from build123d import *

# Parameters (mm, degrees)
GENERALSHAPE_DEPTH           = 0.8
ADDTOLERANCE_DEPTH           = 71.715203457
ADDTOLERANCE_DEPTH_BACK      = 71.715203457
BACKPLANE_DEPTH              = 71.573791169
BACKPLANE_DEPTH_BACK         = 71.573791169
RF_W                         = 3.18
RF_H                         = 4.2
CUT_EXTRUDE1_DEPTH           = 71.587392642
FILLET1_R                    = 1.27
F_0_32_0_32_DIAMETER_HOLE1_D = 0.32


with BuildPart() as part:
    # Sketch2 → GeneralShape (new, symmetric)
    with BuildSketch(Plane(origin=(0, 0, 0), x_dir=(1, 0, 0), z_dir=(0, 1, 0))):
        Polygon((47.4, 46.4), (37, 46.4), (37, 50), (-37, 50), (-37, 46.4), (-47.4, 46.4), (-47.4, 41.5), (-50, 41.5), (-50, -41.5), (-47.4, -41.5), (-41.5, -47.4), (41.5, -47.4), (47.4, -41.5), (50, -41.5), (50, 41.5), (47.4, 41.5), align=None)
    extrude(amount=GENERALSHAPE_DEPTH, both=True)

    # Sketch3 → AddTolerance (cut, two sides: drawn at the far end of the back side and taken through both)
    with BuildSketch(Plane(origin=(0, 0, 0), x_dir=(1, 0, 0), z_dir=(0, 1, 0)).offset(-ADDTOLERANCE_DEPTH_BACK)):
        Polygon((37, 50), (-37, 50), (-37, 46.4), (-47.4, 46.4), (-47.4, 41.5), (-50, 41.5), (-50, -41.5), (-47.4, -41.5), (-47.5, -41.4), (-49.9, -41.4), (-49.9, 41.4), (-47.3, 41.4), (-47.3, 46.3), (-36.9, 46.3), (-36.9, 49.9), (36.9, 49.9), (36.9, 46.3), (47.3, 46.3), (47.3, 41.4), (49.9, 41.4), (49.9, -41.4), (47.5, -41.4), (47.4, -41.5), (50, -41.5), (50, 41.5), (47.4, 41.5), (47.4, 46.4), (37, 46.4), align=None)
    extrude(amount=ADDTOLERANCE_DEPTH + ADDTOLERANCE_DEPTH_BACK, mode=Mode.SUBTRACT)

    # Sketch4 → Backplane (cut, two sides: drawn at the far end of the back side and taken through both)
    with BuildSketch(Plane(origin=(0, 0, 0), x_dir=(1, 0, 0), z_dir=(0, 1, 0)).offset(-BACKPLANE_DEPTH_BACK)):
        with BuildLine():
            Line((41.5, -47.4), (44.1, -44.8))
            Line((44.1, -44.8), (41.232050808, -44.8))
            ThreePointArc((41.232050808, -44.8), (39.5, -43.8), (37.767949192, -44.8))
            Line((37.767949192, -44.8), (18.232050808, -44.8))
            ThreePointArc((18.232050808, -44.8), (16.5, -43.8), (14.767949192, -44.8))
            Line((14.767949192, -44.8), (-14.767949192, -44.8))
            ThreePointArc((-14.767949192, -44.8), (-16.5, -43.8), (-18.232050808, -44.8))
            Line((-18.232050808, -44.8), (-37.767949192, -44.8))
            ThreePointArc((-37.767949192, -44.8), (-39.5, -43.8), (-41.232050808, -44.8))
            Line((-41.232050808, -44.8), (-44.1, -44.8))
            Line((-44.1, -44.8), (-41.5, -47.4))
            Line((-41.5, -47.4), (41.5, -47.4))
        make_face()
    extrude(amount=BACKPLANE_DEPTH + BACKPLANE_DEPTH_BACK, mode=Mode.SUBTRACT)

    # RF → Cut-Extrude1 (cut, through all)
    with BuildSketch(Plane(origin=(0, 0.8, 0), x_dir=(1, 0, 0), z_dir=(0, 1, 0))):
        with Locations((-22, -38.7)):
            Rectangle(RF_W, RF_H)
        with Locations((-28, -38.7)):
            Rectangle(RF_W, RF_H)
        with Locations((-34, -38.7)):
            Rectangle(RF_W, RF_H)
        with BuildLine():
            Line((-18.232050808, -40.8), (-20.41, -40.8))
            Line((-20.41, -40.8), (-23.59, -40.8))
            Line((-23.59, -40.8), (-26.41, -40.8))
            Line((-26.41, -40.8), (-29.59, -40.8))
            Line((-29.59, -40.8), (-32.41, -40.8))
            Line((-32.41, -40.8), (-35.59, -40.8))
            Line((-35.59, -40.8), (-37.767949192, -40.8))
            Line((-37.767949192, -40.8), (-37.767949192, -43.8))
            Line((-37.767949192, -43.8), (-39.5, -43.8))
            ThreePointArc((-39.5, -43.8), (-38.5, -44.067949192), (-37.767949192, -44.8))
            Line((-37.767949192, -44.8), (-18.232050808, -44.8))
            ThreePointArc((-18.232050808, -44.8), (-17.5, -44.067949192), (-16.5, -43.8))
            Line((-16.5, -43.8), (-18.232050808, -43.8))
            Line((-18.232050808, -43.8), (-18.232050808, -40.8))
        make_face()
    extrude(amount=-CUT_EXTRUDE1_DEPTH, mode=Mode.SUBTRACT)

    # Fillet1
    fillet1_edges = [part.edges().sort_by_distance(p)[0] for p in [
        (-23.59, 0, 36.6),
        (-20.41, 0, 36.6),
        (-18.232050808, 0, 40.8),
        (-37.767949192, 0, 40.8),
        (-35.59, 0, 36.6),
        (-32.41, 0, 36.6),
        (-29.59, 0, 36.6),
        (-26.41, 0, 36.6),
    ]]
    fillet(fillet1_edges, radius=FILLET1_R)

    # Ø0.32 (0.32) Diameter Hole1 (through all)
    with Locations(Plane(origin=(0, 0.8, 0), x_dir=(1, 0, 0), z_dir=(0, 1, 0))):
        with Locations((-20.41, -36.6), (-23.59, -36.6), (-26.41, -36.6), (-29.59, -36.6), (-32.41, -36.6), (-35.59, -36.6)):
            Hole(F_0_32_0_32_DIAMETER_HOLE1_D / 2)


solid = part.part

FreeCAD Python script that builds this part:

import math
import FreeCAD as App
import Part
import Sketcher
from FreeCAD import Vector
Q = App.Units.Quantity


def edges_at(feature, points):
    """Names of the edges that pass closest to the given points."""
    edges = feature.Shape.Edges
    near = lambda p: min(range(len(edges)), key=lambda i: edges[i].distToShape(Part.Vertex(*p))[0])
    return sorted({f"Edge{near(p) + 1}" for p in points})


def add_polygon(sketch, points):
    """Adds a closed chain of lines whose ends are joined by coincident constraints."""
    first, n = sketch.GeometryCount, len(points)
    for a, b in zip(points, points[1:] + points[:1]):
        sketch.addGeometry(Part.LineSegment(App.Vector(*a, 0), App.Vector(*b, 0)), False)
    for i in range(n):
        sketch.addConstraint(Sketcher.Constraint("Coincident", first + i, 2, first + (i + 1) % n, 1))

doc = App.newDocument("Part")
body = doc.addObject("PartDesign::Body", "Body")

# Sketch on XZ plane
sketch1 = body.newObject("Sketcher::SketchObject", "Sketch")
sketch1.AttachmentSupport = (doc.getObject("XZ_Plane"), [""])
sketch1.MapMode = "FlatFace"
add_polygon(sketch1, [(47.4, -46.4), (37, -46.4), (37, -50), (-37, -50), (-37, -46.4), (-47.4, -46.4), (-47.4, -41.5), (-50, -41.5), (-50, 41.5), (-47.4, 41.5), (-41.5, 47.4), (41.5, 47.4), (47.4, 41.5), (50, 41.5), (50, -41.5), (47.4, -41.5)])  # lines 0-15
sketch1.addConstraint([
    Sketcher.Constraint("Horizontal", 0),
    Sketcher.Constraint("Vertical", 1),
    Sketcher.Constraint("Horizontal", 2),
    Sketcher.Constraint("Vertical", 3),
    Sketcher.Constraint("Horizontal", 4),
    Sketcher.Constraint("Vertical", 5),
    Sketcher.Constraint("Horizontal", 6),
    Sketcher.Constraint("Vertical", 7),
    Sketcher.Constraint("Horizontal", 8),
    Sketcher.Constraint("Horizontal", 10),
    Sketcher.Constraint("Horizontal", 12),
    Sketcher.Constraint("Vertical", 13),
    Sketcher.Constraint("Horizontal", 14),
    Sketcher.Constraint("Vertical", 15),
    Sketcher.Constraint("Symmetric", 5, 2, 11, 2, -1, 1),
    Sketcher.Constraint("Symmetric", 7, 2, 13, 2, -1, 1),
    Sketcher.Constraint("Symmetric", 0, 2, 3, 2, -2),
    Sketcher.Constraint("Symmetric", 8, 2, 11, 2, -2),
    Sketcher.Constraint("Perpendicular", 9, 11),
    Sketcher.Constraint("Vertical", 11, 2, 14, 2),
    Sketcher.Constraint("Equal", 10, 7),
    Sketcher.Constraint("Equal", 9, 11),
    Sketcher.Constraint("DistanceX", 2, 2, 2, 1, Q("74 mm")),
    Sketcher.Constraint("DistanceX", 10, 1, 10, 2, Q("83 mm")),
    Sketcher.Constraint("DistanceX", 0, 2, 0, 1, Q("10.4 mm")),
    Sketcher.Constraint("DistanceX", 6, 2, 6, 1, Q("2.6 mm")),
    Sketcher.Constraint("DistanceY", 1, 2, 1, 1, Q("3.6 mm")),
    Sketcher.Constraint("DistanceY", 5, 1, 5, 2, Q("4.9 mm")),
])
pad1 = body.newObject("PartDesign::Pad", "Pad")
pad1.Profile = sketch1
pad1.Length = 1.6
pad1.Midplane = True

# Sketch on XZ plane
sketch2 = body.newObject("Sketcher::SketchObject", "Sketch001")
sketch2.AttachmentSupport = (doc.getObject("XZ_Plane"), [""])
sketch2.MapMode = "FlatFace"
add_polygon(sketch2, [(37, -50), (-37, -50), (-37, -46.4), (-47.4, -46.4), (-47.4, -41.5), (-50, -41.5), (-50, 41.5), (-47.4, 41.5), (-47.5, 41.4), (-49.9, 41.4), (-49.9, -41.4), (-47.3, -41.4), (-47.3, -46.3), (-36.9, -46.3), (-36.9, -49.9), (36.9, -49.9), (36.9, -46.3), (47.3, -46.3), (47.3, -41.4), (49.9, -41.4), (49.9, 41.4), (47.5, 41.4), (47.4, 41.5), (50, 41.5), (50, -41.5), (47.4, -41.5), (47.4, -46.4), (37, -46.4)])  # lines 0-27
sketch2.addConstraint([
    Sketcher.Constraint("Horizontal", 0),
    Sketcher.Constraint("Vertical", 1),
    Sketcher.Constraint("Horizontal", 2),
    Sketcher.Constraint("Vertical", 3),
    Sketcher.Constraint("Horizontal", 4),
    Sketcher.Constraint("Vertical", 5),
    Sketcher.Constraint("Horizontal", 6),
    Sketcher.Constraint("Horizontal", 8),
    Sketcher.Constraint("Vertical", 9),
    Sketcher.Constraint("Horizontal", 10),
    Sketcher.Constraint("Vertical", 11),
    Sketcher.Constraint("Horizontal", 12),
    Sketcher.Constraint("Vertical", 13),
    Sketcher.Constraint("Horizontal", 14),
    Sketcher.Constraint("Vertical", 15),
    Sketcher.Constraint("Horizontal", 16),
    Sketcher.Constraint("Vertical", 17),
    Sketcher.Constraint("Horizontal", 18),
    Sketcher.Constraint("Vertical", 19),
    Sketcher.Constraint("Horizontal", 20),
    Sketcher.Constraint("Horizontal", 22),
    Sketcher.Constraint("Vertical", 23),
    Sketcher.Constraint("Horizontal", 24),
    Sketcher.Constraint("Vertical", 25),
    Sketcher.Constraint("Horizontal", 26),
    Sketcher.Constraint("Vertical", 27),
    Sketcher.Constraint("Symmetric", 8, 2, 18, 2, -1, 1),
    Sketcher.Constraint("Symmetric", 3, 2, 21, 2, -1, 1),
    Sketcher.Constraint("Symmetric", 5, 2, 23, 2, -1, 1),
    Sketcher.Constraint("Symmetric", 12, 2, 15, 2, -2),
    Sketcher.Constraint("Symmetric", 10, 2, 17, 2, -2),
    Sketcher.Constraint("Symmetric", 7, 2, 20, 2, -2),
    Sketcher.Constraint("Symmetric", 6, 2, 21, 2, -2),
    Sketcher.Constraint("Symmetric", 2, 2, 25, 2, -2),
    Sketcher.Constraint("Perpendicular", 7, 21),
    Sketcher.Constraint("Equal", 6, 10),
    Sketcher.Constraint("Equal", 2, 12),
    Sketcher.Constraint("Equal", 16, 26),
    Sketcher.Constraint("Equal", 3, 11),
    Sketcher.Constraint("Equal", 1, 13),
    Sketcher.Constraint("DistanceX", 0, 2, 0, 1, Q("74 mm")),
    Sketcher.Constraint("DistanceY", 5, 1, 5, 2, Q("83 mm")),
    Sketcher.Constraint("DistanceX", 2, 2, 2, 1, Q("10.4 mm")),
    Sketcher.Constraint("DistanceX", 4, 2, 4, 1, Q("2.6 mm")),
    Sketcher.Constraint("DistanceX", 8, 2, 8, 1, Q("2.4 mm")),
    Sketcher.Constraint("DistanceX", 14, 1, 14, 2, Q("73.8 mm")),
    Sketcher.Constraint("DistanceY", 1, 1, 1, 2, Q("3.6 mm")),
    Sketcher.Constraint("DistanceY", 3, 1, 3, 2, Q("4.9 mm")),
])
pocket1 = body.newObject("PartDesign::Pocket", "Pocket")
pocket1.Profile = sketch2
pocket1.Type = "ThroughAll"
pocket1.Midplane = True

# Sketch on XZ plane
sketch3 = body.newObject("Sketcher::SketchObject", "Sketch002")
sketch3.AttachmentSupport = (doc.getObject("XZ_Plane"), [""])
sketch3.MapMode = "FlatFace"
sketch3.addGeometry([
    Part.LineSegment(Vector(41.5, 47.4, 0), Vector(44.1, 44.8, 0)),  # 0
    Part.LineSegment(Vector(44.1, 44.8, 0), Vector(41.2, 44.8, 0)),  # 1
    Part.ArcOfCircle(Part.Circle(Vector(39.5, 45.8, 0), Vector(0, 0, 1), 2), math.radians(-150), math.radians(-30)),  # 2
    Part.LineSegment(Vector(37.8, 44.8, 0), Vector(18.2, 44.8, 0)),  # 3
    Part.ArcOfCircle(Part.Circle(Vector(16.5, 45.8, 0), Vector(0, 0, 1), 2), math.radians(-150), math.radians(-30)),  # 4
    Part.LineSegment(Vector(14.8, 44.8, 0), Vector(-14.8, 44.8, 0)),  # 5
    Part.ArcOfCircle(Part.Circle(Vector(-16.5, 45.8, 0), Vector(0, 0, 1), 2), math.radians(-150), math.radians(-30)),  # 6
    Part.LineSegment(Vector(-18.2, 44.8, 0), Vector(-37.8, 44.8, 0)),  # 7
    Part.ArcOfCircle(Part.Circle(Vector(-39.5, 45.8, 0), Vector(0, 0, 1), 2), math.radians(-150), math.radians(-30)),  # 8
    Part.LineSegment(Vector(-41.2, 44.8, 0), Vector(-44.1, 44.8, 0)),  # 9
    Part.LineSegment(Vector(-44.1, 44.8, 0), Vector(-41.5, 47.4, 0)),  # 10
    Part.LineSegment(Vector(-41.5, 47.4, 0), Vector(41.5, 47.4, 0)),  # 11
], False)
sketch3.addConstraint([
    Sketcher.Constraint("Coincident", 0, 2, 1, 1),
    Sketcher.Constraint("Coincident", 1, 2, 2, 2),
    Sketcher.Constraint("Coincident", 2, 1, 3, 1),
    Sketcher.Constraint("Coincident", 3, 2, 4, 2),
    Sketcher.Constraint("Coincident", 4, 1, 5, 1),
    Sketcher.Constraint("Coincident", 5, 2, 6, 2),
    Sketcher.Constraint("Coincident", 6, 1, 7, 1),
    Sketcher.Constraint("Coincident", 7, 2, 8, 2),
    Sketcher.Constraint("Coincident", 8, 1, 9, 1),
    Sketcher.Constraint("Coincident", 9, 2, 10, 1),
    Sketcher.Constraint("Coincident", 10, 2, 11, 1),
    Sketcher.Constraint("Coincident", 11, 2, 0, 1),
    Sketcher.Constraint("Horizontal", 1),
    Sketcher.Constraint("Horizontal", 3),
    Sketcher.Constraint("Horizontal", 5),
    Sketcher.Constraint("Horizontal", 7),
    Sketcher.Constraint("Horizontal", 9),
    Sketcher.Constraint("Horizontal", 11),
    Sketcher.Constraint("Equal", 2, 4),
    Sketcher.Constraint("Equal", 4, 6),
    Sketcher.Constraint("Equal", 6, 8),
    Sketcher.Constraint("Symmetric", 4, 3, 6, 3, -2),
    Sketcher.Constraint("Symmetric", 2, 3, 8, 3, -2),
    Sketcher.Constraint("Symmetric", 0, 2, 9, 2, -2),
    Sketcher.Constraint("Perpendicular", 0, 10),
    Sketcher.Constraint("Horizontal", 2, 3, 4, 3),
    Sketcher.Constraint("Horizontal", 1, 2, 2, 1),
    Sketcher.Constraint("Horizontal", 3, 2, 4, 1),
    Sketcher.Constraint("Horizontal", 5, 2, 6, 1),
    Sketcher.Constraint("Equal", 0, 10),
    Sketcher.Constraint("Radius", 2, Q("2 mm")),
    Sketcher.Constraint("DistanceX", 11, 1, 11, 2, Q("83 mm")),
    Sketcher.Constraint("DistanceX", 4, 3, 2, 3, Q("23 mm")),
    Sketcher.Constraint("DistanceX", 6, 3, 4, 3, Q("33 mm")),
    Sketcher.Constraint("DistanceY", 0, 2, 2, 3, Q("1 mm")),
    Sketcher.Constraint("DistanceY", -1, 1, 2, 3, Q("45.8 mm")),
    Sketcher.Constraint("DistanceX", -1, 1, 0, 2, Q("44.1 mm")),
])
pocket2 = body.newObject("PartDesign::Pocket", "Pocket001")
pocket2.Profile = sketch3
pocket2.Type = "ThroughAll"
pocket2.Midplane = True

# Sketch on XZ plane
sketch4 = body.newObject("Sketcher::SketchObject", "Sketch003")
sketch4.AttachmentSupport = (doc.getObject("XZ_Plane"), [""])
sketch4.MapMode = "FlatFace"
sketch4.AttachmentOffset = App.Placement(Vector(0, 0, -0.8), App.Rotation())
sketch4.addGeometry([
    Part.LineSegment(Vector(-23.6, 36.6, 0), Vector(-23.6, 40.8, 0)),  # 0
    Part.LineSegment(Vector(-23.6, 40.8, 0), Vector(-26.4, 40.8, 0)),  # 1
    Part.LineSegment(Vector(-26.4, 40.8, 0), Vector(-26.4, 36.6, 0)),  # 2
    Part.LineSegment(Vector(-26.4, 36.6, 0), Vector(-29.6, 36.6, 0)),  # 3
    Part.LineSegment(Vector(-29.6, 36.6, 0), Vector(-29.6, 40.8, 0)),  # 4
    Part.LineSegment(Vector(-29.6, 40.8, 0), Vector(-32.4, 40.8, 0)),  # 5
    Part.LineSegment(Vector(-32.4, 40.8, 0), Vector(-32.4, 36.6, 0)),  # 6
    Part.LineSegment(Vector(-32.4, 36.6, 0), Vector(-35.6, 36.6, 0)),  # 7
    Part.LineSegment(Vector(-35.6, 36.6, 0), Vector(-35.6, 40.8, 0)),  # 8
    Part.LineSegment(Vector(-35.6, 40.8, 0), Vector(-37.8, 40.8, 0)),  # 9
    Part.LineSegment(Vector(-37.8, 40.8, 0), Vector(-37.8, 43.8, 0)),  # 10
    Part.LineSegment(Vector(-37.8, 43.8, 0), Vector(-39.5, 43.8, 0)),  # 11
    Part.ArcOfCircle(Part.Circle(Vector(-39.5, 45.8, 0), Vector(0, 0, 1), 2), math.radians(-90), math.radians(-30)),  # 12
    Part.LineSegment(Vector(-37.8, 44.8, 0), Vector(-18.2, 44.8, 0)),  # 13
    Part.ArcOfCircle(Part.Circle(Vector(-16.5, 45.8, 0), Vector(0, 0, 1), 2), math.radians(-150), math.radians(-90)),  # 14
    Part.LineSegment(Vector(-16.5, 43.8, 0), Vector(-18.2, 43.8, 0)),  # 15
    Part.LineSegment(Vector(-18.2, 43.8, 0), Vector(-18.2, 40.8, 0)),  # 16
    Part.LineSegment(Vector(-18.2, 40.8, 0), Vector(-20.4, 40.8, 0)),  # 17
    Part.LineSegment(Vector(-20.4, 40.8, 0), Vector(-20.4, 36.6, 0)),  # 18
    Part.LineSegment(Vector(-20.4, 36.6, 0), Vector(-23.6, 36.6, 0)),  # 19
], False)
sketch4.addConstraint([
    Sketcher.Constraint("Coincident", 0, 2, 1, 1),
    Sketcher.Constraint("Coincident", 1, 2, 2, 1),
    Sketcher.Constraint("Coincident", 2, 2, 3, 1),
    Sketcher.Constraint("Coincident", 3, 2, 4, 1),
    Sketcher.Constraint("Coincident", 4, 2, 5, 1),
    Sketcher.Constraint("Coincident", 5, 2, 6, 1),
    Sketcher.Constraint("Coincident", 6, 2, 7, 1),
    Sketcher.Constraint("Coincident", 7, 2, 8, 1),
    Sketcher.Constraint("Coincident", 8, 2, 9, 1),
    Sketcher.Constraint("Coincident", 9, 2, 10, 1),
    Sketcher.Constraint("Coincident", 10, 2, 11, 1),
    Sketcher.Constraint("Tangent", 11, 2, 12, 1),
    Sketcher.Constraint("Coincident", 12, 2, 13, 1),
    Sketcher.Constraint("Coincident", 13, 2, 14, 1),
    Sketcher.Constraint("Tangent", 14, 2, 15, 1),
    Sketcher.Constraint("Coincident", 15, 2, 16, 1),
    Sketcher.Constraint("Coincident", 16, 2, 17, 1),
    Sketcher.Constraint("Coincident", 17, 2, 18, 1),
    Sketcher.Constraint("Coincident", 18, 2, 19, 1),
    Sketcher.Constraint("Coincident", 19, 2, 0, 1),
    Sketcher.Constraint("Vertical", 0),
    Sketcher.Constraint("Horizontal", 1),
    Sketcher.Constraint("Vertical", 2),
    Sketcher.Constraint("Horizontal", 3),
    Sketcher.Constraint("Vertical", 4),
    Sketcher.Constraint("Horizontal", 5),
    Sketcher.Constraint("Vertical", 6),
    Sketcher.Constraint("Horizontal", 7),
    Sketcher.Constraint("Vertical", 8),
    Sketcher.Constraint("Horizontal", 9),
    Sketcher.Constraint("Vertical", 10),
    Sketcher.Constraint("Horizontal", 11),
    Sketcher.Constraint("Horizontal", 13),
    Sketcher.Constraint("Horizontal", 15),
    Sketcher.Constraint("Vertical", 16),
    Sketcher.Constraint("Horizontal", 17),
    Sketcher.Constraint("Vertical", 18),
    Sketcher.Constraint("Horizontal", 19),
    Sketcher.Constraint("Equal", 12, 14),
    Sketcher.Constraint("Horizontal", 12, 3, 14, 3),
    Sketcher.Constraint("Horizontal", 1, 2, 4, 2),
    Sketcher.Constraint("Horizontal", 3, 2, 6, 2),
    Sketcher.Constraint("Horizontal", 5, 2, 8, 2),
    Sketcher.Constraint("Horizontal", 9, 2, 16, 2),
    Sketcher.Constraint("Horizontal", 7, 2, 18, 2),
    Sketcher.Constraint("Vertical", 10, 2, 12, 2),
    Sketcher.Constraint("Vertical", 13, 2, 15, 2),
    Sketcher.Constraint("Equal", 1, 5),
    Sketcher.Constraint("Equal", 3, 7),
    Sketcher.Constraint("Equal", 9, 17),
    Sketcher.Constraint("Equal", 7, 19),
    Sketcher.Constraint("Radius", 12, Q("2 mm")),
    Sketcher.Constraint("DistanceY", 10, 1, 10, 2, Q("3 mm")),
    Sketcher.Constraint("DistanceY", 0, 1, 0, 2, Q("4.2 mm")),
    Sketcher.Constraint("DistanceX", 12, 3, 14, 3, Q("23 mm")),
    Sketcher.Constraint("DistanceX", 3, 2, 0, 2, Q("6 mm")),
    Sketcher.Constraint("DistanceY", 10, 2, 12, 2, Q("1 mm")),
    Sketcher.Constraint("DistanceX", 1, 2, 1, 1, Q("2.82 mm")),
    Sketcher.Constraint("DistanceX", 12, 3, -1, 1, Q("39.5 mm")),
    Sketcher.Constraint("DistanceY", -1, 1, 12, 3, Q("45.8 mm")),
])
pocket3 = body.newObject("PartDesign::Pocket", "Pocket002")
pocket3.Profile = sketch4
pocket3.Type = "ThroughAll"
pocket3.Reversed = True
doc.recompute()

fillet = body.newObject("PartDesign::Fillet", "Fillet")
fillet.Base = (pocket3, edges_at(pocket3, [
    (-23.59, 0, 36.6),
    (-20.41, 0, 36.6),
    (-18.232, 0, 40.8),
    (-37.768, 0, 40.8),
    (-35.59, 0, 36.6),
    (-32.41, 0, 36.6),
    (-29.59, 0, 36.6),
    (-26.41, 0, 36.6),
]))
fillet.Radius = 1.27

# Sketch on XZ plane
sketch5 = body.newObject("Sketcher::SketchObject", "Sketch004")
sketch5.AttachmentSupport = (doc.getObject("XZ_Plane"), [""])
sketch5.MapMode = "FlatFace"
sketch5.AttachmentOffset = App.Placement(Vector(0, 0, -0.8), App.Rotation())
sketch5.addGeometry([
    Part.Circle(Vector(-20.41, 36.6, 0), Vector(0, 0, 1), 0.16),  # 0
    Part.Circle(Vector(-23.59, 36.6, 0), Vector(0, 0, 1), 0.16),  # 1
    Part.Circle(Vector(-26.41, 36.6, 0), Vector(0, 0, 1), 0.16),  # 2
    Part.Circle(Vector(-29.59, 36.6, 0), Vector(0, 0, 1), 0.16),  # 3
    Part.Circle(Vector(-32.41, 36.6, 0), Vector(0, 0, 1), 0.16),  # 4
    Part.Circle(Vector(-35.59, 36.6, 0), Vector(0, 0, 1), 0.16),  # 5
], False)
sketch5.addConstraint([
    Sketcher.Constraint("Equal", 0, 1),
    Sketcher.Constraint("Equal", 1, 2),
    Sketcher.Constraint("Equal", 2, 3),
    Sketcher.Constraint("Equal", 3, 4),
    Sketcher.Constraint("Equal", 4, 5),
    Sketcher.Constraint("Horizontal", 0, 3, 1, 3),
    Sketcher.Constraint("Horizontal", 1, 3, 2, 3),
    Sketcher.Constraint("Horizontal", 2, 3, 3, 3),
    Sketcher.Constraint("Horizontal", 3, 3, 4, 3),
    Sketcher.Constraint("Horizontal", 4, 3, 5, 3),
    Sketcher.Constraint("Diameter", 0, Q("0.32 mm")),
    Sketcher.Constraint("DistanceX", 2, 3, 0, 3, Q("6 mm")),
    Sketcher.Constraint("DistanceX", 3, 3, 1, 3, Q("6 mm")),
    Sketcher.Constraint("DistanceX", 4, 3, 2, 3, Q("6 mm")),
    Sketcher.Constraint("DistanceX", 5, 3, 3, 3, Q("6 mm")),
    Sketcher.Constraint("DistanceY", -1, 1, 0, 3, Q("36.6 mm")),
    Sketcher.Constraint("DistanceX", 0, 3, -1, 1, Q("20.41 mm")),
    Sketcher.Constraint("DistanceX", 1, 3, -1, 1, Q("23.59 mm")),
])
doc.recompute()
hole = body.newObject("PartDesign::Hole", "Hole")
hole.Profile = sketch5
hole.ThreadType = "None"
hole.Diameter = 0.32
hole.DepthType = "ThroughAll"
hole.Reversed = True

doc.recompute()
